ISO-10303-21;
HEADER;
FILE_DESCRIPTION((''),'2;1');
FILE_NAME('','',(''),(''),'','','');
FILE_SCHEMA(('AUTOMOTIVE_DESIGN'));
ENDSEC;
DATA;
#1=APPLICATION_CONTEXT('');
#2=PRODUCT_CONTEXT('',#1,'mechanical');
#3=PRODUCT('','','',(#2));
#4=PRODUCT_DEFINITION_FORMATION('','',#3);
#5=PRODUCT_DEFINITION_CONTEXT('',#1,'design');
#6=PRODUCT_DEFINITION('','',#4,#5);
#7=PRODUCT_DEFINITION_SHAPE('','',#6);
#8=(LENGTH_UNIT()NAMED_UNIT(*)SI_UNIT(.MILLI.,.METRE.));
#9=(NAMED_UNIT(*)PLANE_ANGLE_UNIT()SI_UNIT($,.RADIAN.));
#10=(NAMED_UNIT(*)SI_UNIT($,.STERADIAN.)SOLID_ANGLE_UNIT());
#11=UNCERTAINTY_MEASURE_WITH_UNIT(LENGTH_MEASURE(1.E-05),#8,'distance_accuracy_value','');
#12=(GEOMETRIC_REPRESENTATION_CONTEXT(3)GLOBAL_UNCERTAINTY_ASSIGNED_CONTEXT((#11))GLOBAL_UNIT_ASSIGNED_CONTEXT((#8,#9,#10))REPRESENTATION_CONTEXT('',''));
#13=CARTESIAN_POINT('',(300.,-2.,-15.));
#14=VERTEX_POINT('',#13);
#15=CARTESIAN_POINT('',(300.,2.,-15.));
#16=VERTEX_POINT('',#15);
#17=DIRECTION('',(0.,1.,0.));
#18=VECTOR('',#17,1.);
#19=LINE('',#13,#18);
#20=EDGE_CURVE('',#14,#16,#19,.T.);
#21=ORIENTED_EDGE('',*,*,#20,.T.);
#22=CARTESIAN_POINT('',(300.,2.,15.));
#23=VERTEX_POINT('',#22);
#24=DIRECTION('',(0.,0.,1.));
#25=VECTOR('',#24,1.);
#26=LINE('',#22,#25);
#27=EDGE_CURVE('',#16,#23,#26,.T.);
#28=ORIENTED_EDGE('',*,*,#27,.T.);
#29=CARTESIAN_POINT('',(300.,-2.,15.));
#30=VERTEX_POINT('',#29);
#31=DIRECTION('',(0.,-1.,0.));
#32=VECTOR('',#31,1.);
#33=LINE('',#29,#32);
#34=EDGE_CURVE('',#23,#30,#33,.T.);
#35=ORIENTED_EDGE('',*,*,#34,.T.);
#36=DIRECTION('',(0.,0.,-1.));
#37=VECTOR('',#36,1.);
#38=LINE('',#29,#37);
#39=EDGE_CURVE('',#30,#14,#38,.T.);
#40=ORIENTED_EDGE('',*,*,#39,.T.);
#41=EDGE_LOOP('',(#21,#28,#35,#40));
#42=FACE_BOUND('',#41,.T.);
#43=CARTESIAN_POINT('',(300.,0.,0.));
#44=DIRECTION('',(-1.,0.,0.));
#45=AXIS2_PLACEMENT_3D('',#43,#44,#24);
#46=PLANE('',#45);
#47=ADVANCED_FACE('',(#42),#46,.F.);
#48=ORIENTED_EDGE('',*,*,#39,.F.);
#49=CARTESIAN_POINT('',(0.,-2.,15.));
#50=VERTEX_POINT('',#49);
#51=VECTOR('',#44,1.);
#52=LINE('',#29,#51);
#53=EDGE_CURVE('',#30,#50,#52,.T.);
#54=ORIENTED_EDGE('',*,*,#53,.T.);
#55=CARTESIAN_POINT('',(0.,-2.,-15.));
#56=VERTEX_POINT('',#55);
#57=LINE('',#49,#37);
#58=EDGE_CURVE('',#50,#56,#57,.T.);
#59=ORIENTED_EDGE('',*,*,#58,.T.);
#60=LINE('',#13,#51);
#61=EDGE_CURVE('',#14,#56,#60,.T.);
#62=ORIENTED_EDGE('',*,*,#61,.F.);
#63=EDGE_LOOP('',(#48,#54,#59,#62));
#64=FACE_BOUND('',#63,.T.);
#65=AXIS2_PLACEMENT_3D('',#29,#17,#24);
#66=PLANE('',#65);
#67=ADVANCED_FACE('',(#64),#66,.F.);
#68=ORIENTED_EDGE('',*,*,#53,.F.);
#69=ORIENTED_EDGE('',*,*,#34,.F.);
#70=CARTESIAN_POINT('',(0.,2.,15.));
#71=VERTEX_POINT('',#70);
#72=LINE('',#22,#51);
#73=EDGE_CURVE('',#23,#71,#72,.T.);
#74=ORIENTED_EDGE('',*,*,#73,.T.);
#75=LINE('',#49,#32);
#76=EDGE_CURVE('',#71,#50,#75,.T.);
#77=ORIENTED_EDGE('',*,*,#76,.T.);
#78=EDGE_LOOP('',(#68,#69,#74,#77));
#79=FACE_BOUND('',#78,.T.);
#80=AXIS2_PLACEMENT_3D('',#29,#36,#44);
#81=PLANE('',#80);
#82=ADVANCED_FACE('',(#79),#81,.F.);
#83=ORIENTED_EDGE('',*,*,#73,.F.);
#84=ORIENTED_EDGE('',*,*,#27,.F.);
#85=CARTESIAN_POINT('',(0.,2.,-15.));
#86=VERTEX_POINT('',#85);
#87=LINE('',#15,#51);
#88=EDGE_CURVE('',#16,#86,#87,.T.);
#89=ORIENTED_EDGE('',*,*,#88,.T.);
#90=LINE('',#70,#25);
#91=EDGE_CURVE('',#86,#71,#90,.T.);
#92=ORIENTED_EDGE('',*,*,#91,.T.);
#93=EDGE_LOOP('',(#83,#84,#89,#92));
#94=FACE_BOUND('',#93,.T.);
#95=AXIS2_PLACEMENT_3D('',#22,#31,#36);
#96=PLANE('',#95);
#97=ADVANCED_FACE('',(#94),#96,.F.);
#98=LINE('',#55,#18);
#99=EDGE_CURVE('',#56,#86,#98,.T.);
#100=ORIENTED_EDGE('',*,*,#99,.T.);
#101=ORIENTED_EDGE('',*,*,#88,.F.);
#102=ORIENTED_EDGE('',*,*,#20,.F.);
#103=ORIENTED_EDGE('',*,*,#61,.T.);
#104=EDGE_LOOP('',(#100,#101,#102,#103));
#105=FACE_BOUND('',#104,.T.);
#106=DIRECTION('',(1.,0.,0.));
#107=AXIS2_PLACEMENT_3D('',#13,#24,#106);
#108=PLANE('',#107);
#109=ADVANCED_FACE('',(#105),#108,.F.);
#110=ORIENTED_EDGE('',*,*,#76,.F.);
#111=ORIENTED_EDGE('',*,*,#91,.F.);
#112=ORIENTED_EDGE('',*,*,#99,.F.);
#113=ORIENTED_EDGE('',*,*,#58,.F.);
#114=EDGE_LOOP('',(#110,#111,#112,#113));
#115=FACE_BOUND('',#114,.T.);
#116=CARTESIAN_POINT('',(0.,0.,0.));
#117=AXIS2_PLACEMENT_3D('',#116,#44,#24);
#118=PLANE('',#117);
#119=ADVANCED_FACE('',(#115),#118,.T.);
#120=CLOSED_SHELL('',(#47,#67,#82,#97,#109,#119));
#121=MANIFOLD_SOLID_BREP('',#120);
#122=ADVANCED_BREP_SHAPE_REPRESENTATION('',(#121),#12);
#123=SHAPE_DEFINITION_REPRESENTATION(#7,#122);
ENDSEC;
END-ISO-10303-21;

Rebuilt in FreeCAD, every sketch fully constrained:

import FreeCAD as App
import Part
import Sketcher
Q = App.Units.Quantity


def add_polygon(sketch, points):
    """Adds a closed chain of lines whose ends are joined by coincident constraints."""
    first, n = sketch.GeometryCount, len(points)
    for a, b in zip(points, points[1:] + points[:1]):
        sketch.addGeometry(Part.LineSegment(App.Vector(*a, 0), App.Vector(*b, 0)), False)
    for i in range(n):
        sketch.addConstraint(Sketcher.Constraint("Coincident", first + i, 2, first + (i + 1) % n, 1))

doc = App.newDocument("Part")
body = doc.addObject("PartDesign::Body", "Body")

# Sketch on YZ plane
sketch1 = doc.addObject("Sketcher::SketchObject", "Sketch")
body.addObject(sketch1)
sketch1.AttachmentSupport = (doc.YZ_Plane, [""])
sketch1.MapMode = "FlatFace"
add_polygon(sketch1, [(2, 15), (-2, 15), (-2, -15), (2, -15)])  # lines 0-3
sketch1.addConstraint([
    Sketcher.Constraint("Horizontal", 0),
    Sketcher.Constraint("Vertical", 1),
    Sketcher.Constraint("Horizontal", 2),
    Sketcher.Constraint("Vertical", 3),
    Sketcher.Constraint("Symmetric", 0, 2, 2, 2, -1, 1),
    Sketcher.Constraint("DistanceX", 0, 2, 0, 1, Q("4 mm")),
    Sketcher.Constraint("DistanceY", 1, 2, 1, 1, Q("30 mm")),
])
pad1 = doc.addObject("PartDesign::Pad", "Pad")
body.addObject(pad1)
pad1.Profile = sketch1
pad1.Length = 300

doc.recompute()
